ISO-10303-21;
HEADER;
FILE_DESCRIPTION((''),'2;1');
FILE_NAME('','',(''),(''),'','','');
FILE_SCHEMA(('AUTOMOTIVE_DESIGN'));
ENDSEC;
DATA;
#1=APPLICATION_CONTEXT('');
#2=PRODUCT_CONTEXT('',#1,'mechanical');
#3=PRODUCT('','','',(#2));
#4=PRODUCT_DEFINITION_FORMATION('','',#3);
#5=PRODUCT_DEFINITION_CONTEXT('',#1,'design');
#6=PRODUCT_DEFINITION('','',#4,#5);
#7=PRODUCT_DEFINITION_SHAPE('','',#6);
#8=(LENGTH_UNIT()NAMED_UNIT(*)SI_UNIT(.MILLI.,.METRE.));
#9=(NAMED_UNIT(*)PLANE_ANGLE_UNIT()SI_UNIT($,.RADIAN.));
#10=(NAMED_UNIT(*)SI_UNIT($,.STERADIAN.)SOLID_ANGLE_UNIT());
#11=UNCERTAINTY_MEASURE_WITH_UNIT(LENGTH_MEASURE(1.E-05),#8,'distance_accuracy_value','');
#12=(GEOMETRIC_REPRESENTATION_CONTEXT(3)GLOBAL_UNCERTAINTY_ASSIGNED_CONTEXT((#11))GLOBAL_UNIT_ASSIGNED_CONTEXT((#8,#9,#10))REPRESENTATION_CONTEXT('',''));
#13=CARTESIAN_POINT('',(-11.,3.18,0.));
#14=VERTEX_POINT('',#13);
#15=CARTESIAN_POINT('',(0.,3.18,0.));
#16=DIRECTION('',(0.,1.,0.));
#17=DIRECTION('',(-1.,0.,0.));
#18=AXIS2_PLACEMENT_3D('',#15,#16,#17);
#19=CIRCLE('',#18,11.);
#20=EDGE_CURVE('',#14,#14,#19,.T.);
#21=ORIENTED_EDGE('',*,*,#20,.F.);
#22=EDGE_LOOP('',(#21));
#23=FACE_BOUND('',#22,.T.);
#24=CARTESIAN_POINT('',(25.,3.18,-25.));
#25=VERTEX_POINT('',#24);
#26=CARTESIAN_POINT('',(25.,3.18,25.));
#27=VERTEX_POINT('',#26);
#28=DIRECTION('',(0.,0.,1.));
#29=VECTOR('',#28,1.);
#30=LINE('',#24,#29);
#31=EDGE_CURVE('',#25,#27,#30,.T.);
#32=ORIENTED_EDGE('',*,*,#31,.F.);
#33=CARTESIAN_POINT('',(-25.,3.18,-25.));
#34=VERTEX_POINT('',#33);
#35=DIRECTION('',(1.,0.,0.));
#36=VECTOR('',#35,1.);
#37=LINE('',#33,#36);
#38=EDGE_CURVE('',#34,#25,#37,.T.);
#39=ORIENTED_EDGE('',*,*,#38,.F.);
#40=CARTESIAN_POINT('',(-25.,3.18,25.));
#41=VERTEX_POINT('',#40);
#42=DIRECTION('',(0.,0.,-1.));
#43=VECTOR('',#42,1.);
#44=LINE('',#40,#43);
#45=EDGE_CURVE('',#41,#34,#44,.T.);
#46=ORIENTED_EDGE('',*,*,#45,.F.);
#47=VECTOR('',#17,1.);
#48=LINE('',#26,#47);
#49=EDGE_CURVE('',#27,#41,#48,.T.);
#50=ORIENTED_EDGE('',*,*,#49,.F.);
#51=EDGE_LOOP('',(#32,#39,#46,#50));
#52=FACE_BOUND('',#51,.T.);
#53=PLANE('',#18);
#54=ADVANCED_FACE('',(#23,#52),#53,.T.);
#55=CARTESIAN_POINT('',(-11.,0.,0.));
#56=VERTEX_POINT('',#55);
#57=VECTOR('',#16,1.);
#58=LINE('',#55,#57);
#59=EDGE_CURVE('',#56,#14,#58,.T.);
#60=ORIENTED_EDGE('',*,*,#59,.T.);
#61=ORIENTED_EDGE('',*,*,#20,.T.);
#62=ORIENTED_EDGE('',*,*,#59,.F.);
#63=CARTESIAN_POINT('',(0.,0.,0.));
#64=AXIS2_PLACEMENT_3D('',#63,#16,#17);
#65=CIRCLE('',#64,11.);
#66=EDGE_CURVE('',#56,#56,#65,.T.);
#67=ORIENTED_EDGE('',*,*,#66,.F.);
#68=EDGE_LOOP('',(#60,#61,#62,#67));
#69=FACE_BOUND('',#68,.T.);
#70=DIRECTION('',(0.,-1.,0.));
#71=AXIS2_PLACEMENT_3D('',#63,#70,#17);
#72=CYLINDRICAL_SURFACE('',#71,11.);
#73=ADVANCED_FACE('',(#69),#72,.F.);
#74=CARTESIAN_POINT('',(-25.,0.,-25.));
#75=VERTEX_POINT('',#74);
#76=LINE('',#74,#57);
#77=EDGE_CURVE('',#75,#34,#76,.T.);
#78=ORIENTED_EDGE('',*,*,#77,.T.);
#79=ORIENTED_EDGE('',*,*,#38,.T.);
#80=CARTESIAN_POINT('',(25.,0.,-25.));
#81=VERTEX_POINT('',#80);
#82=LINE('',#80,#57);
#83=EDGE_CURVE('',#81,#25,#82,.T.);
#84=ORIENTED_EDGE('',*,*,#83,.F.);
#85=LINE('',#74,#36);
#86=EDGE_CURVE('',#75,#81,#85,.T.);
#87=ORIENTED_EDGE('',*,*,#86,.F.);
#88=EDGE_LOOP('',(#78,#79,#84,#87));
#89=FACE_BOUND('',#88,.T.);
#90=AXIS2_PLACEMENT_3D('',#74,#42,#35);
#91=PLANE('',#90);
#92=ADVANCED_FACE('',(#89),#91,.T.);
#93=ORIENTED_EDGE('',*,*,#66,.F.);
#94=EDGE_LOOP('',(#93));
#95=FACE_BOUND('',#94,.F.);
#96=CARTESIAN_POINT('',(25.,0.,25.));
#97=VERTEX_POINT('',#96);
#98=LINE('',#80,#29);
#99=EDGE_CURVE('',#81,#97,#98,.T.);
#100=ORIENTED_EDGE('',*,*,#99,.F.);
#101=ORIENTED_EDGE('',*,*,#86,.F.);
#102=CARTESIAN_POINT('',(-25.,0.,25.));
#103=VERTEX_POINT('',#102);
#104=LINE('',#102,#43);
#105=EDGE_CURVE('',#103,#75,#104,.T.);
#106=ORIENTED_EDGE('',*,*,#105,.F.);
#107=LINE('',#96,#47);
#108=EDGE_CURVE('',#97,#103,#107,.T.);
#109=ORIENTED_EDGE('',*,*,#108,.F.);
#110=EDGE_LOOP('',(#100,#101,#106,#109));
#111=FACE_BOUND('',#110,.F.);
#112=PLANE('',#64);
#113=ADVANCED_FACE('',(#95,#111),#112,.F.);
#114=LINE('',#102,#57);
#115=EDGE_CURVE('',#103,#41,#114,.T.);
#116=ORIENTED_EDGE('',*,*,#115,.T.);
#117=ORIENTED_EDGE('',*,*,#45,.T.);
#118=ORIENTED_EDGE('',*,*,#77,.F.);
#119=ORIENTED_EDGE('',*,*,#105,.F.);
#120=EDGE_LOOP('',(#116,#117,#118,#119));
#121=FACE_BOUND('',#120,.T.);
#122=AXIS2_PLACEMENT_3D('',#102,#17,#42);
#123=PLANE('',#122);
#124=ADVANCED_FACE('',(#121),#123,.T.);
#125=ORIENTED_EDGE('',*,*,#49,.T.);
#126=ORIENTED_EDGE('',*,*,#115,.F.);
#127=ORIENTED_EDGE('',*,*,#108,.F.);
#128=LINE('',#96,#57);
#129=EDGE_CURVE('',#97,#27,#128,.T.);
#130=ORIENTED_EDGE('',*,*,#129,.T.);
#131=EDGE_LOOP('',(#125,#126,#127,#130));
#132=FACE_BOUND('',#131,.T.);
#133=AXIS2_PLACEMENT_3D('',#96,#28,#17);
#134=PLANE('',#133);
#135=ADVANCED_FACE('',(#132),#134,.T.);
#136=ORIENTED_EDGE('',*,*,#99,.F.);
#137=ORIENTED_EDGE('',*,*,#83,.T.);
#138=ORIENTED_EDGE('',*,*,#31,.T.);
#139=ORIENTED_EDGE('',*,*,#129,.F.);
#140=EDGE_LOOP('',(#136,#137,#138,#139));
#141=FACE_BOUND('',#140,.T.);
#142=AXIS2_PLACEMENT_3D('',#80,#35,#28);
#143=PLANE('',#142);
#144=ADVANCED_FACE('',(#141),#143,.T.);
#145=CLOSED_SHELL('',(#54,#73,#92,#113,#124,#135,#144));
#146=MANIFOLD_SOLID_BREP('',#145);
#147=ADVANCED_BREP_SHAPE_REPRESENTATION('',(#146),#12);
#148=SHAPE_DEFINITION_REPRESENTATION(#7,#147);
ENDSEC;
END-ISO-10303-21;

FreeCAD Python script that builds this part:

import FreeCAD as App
import Part
import Sketcher
from FreeCAD import Vector

doc = App.newDocument("Part")
body = doc.addObject("PartDesign::Body", "Body")

# Sketch on XZ plane
sketch1 = body.newObject("Sketcher::SketchObject", "Sketch")
sketch1.AttachmentSupport = (doc.getObject("XZ_Plane"), [""])
sketch1.MapMode = "FlatFace"
sketch1.addGeometry([
    Part.LineSegment(Vector(-25, 25, 0), Vector(25, 25, 0)),  # 0
    Part.LineSegment(Vector(25, 25, 0), Vector(25, -25, 0)),  # 1
    Part.LineSegment(Vector(25, -25, 0), Vector(-25, -25, 0)),  # 2
    Part.LineSegment(Vector(-25, -25, 0), Vector(-25, 25, 0)),  # 3
    Part.Circle(Vector(0, 0, 0), Vector(0, 0, 1), 11),  # 4
], False)
sketch1.addConstraint([
    Sketcher.Constraint("Coincident", 0, 2, 1, 1),
    Sketcher.Constraint("Coincident", 1, 2, 2, 1),
    Sketcher.Constraint("Coincident", 2, 2, 3, 1),
    Sketcher.Constraint("Coincident", 3, 2, 0, 1),
    Sketcher.Constraint("Horizontal", 0),
    Sketcher.Constraint("Vertical", 1),
    Sketcher.Constraint("Horizontal", 2),
    Sketcher.Constraint("Vertical", 3),
    Sketcher.Constraint("Coincident", 4, 3, -1, 1),
    Sketcher.Constraint("Symmetric", 0, 2, 2, 2, -1, 1),
    Sketcher.Constraint("Equal", 2, 1),
    Sketcher.Constraint("Diameter", 4, 22.0),
    Sketcher.Constraint("DistanceX", 0, 1, 0, 2, 50.0),
])
pad1 = body.newObject("PartDesign::Pad", "Pad")
pad1.Profile = sketch1
pad1.Length = 3.18
pad1.Reversed = True

doc.recompute()
